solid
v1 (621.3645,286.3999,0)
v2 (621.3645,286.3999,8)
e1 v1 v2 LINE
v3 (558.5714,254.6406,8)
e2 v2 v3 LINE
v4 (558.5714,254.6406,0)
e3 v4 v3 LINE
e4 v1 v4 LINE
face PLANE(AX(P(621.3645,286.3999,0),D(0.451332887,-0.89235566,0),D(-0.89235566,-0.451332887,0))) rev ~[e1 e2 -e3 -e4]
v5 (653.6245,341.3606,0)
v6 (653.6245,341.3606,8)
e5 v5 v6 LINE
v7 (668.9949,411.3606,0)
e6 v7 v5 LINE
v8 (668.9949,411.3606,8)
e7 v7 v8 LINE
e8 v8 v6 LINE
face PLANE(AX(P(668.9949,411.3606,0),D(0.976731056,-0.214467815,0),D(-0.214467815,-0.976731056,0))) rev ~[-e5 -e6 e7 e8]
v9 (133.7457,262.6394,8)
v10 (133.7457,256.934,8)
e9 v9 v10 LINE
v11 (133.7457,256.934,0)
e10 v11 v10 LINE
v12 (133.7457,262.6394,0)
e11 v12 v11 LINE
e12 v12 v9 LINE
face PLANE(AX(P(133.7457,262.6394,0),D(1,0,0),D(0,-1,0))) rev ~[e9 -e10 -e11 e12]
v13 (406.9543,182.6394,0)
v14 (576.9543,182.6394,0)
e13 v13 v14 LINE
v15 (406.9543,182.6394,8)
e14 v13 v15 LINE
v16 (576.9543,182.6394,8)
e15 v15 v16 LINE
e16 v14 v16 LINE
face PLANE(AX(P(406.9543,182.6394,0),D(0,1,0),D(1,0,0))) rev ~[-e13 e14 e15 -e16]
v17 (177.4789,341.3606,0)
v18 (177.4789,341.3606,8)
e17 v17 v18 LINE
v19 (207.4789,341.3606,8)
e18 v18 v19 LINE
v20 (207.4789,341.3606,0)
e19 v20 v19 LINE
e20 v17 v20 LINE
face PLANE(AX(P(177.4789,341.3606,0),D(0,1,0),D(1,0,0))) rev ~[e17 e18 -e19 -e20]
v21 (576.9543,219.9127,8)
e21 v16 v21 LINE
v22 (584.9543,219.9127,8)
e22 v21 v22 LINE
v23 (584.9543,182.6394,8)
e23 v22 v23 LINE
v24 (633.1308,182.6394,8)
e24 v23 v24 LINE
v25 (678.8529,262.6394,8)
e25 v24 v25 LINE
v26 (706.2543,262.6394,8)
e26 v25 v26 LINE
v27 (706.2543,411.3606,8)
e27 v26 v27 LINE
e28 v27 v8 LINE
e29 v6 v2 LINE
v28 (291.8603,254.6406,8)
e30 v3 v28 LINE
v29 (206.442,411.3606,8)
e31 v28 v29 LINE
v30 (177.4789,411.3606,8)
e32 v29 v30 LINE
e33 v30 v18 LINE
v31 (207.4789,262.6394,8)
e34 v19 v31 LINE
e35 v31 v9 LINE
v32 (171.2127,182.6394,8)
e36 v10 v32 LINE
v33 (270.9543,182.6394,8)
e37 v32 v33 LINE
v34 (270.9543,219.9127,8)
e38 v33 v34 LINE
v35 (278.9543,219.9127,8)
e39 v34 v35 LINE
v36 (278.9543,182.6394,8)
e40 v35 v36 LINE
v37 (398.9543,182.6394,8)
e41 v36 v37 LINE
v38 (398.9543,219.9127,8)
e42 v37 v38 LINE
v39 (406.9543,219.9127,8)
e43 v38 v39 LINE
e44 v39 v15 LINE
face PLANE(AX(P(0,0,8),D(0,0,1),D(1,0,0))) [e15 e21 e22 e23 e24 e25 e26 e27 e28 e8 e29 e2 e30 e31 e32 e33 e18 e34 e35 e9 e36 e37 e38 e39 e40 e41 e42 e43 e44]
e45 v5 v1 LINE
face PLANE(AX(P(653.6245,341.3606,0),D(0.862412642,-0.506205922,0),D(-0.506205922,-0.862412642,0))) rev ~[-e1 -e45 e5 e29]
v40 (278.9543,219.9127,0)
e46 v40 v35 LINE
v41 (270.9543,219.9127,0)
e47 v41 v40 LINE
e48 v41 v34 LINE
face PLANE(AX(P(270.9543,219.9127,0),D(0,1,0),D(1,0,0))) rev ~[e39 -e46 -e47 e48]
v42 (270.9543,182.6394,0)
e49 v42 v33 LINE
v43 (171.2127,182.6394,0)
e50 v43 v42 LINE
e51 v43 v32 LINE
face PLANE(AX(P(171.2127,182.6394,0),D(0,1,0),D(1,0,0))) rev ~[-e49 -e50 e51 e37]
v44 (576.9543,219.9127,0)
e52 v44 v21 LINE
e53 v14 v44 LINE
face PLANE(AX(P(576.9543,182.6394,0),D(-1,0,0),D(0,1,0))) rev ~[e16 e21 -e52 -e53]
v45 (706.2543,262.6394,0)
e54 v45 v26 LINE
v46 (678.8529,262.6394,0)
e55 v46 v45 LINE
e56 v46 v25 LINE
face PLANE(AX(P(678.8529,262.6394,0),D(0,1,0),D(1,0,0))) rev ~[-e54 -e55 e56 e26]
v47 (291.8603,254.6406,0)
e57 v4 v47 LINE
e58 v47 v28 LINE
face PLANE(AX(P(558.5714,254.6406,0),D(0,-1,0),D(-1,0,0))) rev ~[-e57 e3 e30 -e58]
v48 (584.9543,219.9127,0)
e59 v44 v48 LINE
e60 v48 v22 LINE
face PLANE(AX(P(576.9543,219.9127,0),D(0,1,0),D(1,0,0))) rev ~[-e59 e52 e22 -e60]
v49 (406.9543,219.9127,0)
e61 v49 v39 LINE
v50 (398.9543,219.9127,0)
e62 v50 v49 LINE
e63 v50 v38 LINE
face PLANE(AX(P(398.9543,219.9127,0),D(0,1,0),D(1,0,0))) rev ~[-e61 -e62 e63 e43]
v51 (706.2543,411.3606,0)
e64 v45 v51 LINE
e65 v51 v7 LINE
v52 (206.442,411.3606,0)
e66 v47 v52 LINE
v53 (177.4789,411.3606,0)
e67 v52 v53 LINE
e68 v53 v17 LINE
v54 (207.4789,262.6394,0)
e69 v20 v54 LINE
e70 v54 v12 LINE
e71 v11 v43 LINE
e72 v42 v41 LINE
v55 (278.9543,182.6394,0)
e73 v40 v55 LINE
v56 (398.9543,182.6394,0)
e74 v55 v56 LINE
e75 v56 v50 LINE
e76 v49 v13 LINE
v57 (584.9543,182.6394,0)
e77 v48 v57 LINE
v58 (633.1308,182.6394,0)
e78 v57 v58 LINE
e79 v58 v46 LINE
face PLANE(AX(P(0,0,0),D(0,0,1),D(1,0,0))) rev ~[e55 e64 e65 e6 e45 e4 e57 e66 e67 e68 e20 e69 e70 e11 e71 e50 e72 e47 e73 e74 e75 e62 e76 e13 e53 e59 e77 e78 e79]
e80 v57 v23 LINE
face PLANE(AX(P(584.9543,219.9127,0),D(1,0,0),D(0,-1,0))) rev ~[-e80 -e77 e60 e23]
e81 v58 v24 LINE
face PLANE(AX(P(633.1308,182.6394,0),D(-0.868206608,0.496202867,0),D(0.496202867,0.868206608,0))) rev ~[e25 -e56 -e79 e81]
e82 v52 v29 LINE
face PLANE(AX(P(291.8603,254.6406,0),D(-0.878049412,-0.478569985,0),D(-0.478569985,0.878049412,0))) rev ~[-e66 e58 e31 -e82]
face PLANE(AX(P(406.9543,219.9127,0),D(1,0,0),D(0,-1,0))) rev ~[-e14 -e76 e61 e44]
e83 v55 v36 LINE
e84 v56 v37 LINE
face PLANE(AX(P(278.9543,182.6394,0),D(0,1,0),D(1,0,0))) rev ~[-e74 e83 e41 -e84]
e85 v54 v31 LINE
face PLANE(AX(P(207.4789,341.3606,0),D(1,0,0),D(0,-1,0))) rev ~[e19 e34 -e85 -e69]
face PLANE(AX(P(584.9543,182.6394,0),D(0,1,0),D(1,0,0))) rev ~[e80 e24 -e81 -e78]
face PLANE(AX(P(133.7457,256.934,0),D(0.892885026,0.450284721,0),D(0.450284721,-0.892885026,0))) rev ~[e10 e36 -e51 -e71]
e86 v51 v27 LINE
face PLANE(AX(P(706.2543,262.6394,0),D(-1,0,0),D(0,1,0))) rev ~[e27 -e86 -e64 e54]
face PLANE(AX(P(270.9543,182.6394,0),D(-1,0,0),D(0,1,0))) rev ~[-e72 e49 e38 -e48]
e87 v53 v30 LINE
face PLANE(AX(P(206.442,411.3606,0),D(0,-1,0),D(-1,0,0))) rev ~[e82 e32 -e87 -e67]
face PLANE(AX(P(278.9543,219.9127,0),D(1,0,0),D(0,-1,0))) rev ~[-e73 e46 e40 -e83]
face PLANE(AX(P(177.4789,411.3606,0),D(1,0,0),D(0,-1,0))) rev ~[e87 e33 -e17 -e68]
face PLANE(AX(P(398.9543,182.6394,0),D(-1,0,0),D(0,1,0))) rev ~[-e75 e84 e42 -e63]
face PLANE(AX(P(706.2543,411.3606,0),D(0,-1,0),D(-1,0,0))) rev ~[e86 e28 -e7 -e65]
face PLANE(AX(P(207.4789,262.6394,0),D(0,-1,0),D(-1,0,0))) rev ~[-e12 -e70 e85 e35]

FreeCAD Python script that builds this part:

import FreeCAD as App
import Part
import Sketcher
Q = App.Units.Quantity


def add_polygon(sketch, points):
    """Adds a closed chain of lines whose ends are joined by coincident constraints."""
    first, n = sketch.GeometryCount, len(points)
    for a, b in zip(points, points[1:] + points[:1]):
        sketch.addGeometry(Part.LineSegment(App.Vector(*a, 0), App.Vector(*b, 0)), False)
    for i in range(n):
        sketch.addConstraint(Sketcher.Constraint("Coincident", first + i, 2, first + (i + 1) % n, 1))

doc = App.newDocument("Part")
body = doc.addObject("PartDesign::Body", "Body")

# Sketch on XY plane
sketch1 = body.newObject("Sketcher::SketchObject", "Sketch")
sketch1.AttachmentSupport = (doc.getObject("XY_Plane"), [""])
sketch1.MapMode = "FlatFace"
add_polygon(sketch1, [(177.4789, 411.3606), (177.4789, 341.3606), (207.4789, 341.3606), (207.4789, 262.6394), (133.7457, 262.6394), (133.7457, 256.934), (171.2127, 182.6394), (270.9543, 182.6394), (270.9543, 219.9127), (278.9543, 219.9127), (278.9543, 182.6394), (398.9543, 182.6394), (398.9543, 219.9127), (406.9543, 219.9127), (406.9543, 182.6394), (576.9543, 182.6394), (576.9543, 219.9127), (584.9543, 219.9127), (584.9543, 182.6394), (633.1308, 182.6394), (678.8529, 262.6394), (706.2543, 262.6394), (706.2543, 411.3606), (668.9949, 411.3606), (653.6245, 341.3606), (621.3645, 286.3999), (558.5714, 254.6406), (291.8603, 254.6406), (206.442, 411.3606)])  # lines 0-28
sketch1.addConstraint([
    Sketcher.Constraint("Vertical", 0),
    Sketcher.Constraint("Horizontal", 1),
    Sketcher.Constraint("Vertical", 2),
    Sketcher.Constraint("Horizontal", 3),
    Sketcher.Constraint("Vertical", 4),
    Sketcher.Constraint("Horizontal", 6),
    Sketcher.Constraint("Vertical", 7),
    Sketcher.Constraint("Horizontal", 8),
    Sketcher.Constraint("Vertical", 9),
    Sketcher.Constraint("Horizontal", 10),
    Sketcher.Constraint("Vertical", 11),
    Sketcher.Constraint("Horizontal", 12),
    Sketcher.Constraint("Vertical", 13),
    Sketcher.Constraint("Horizontal", 14),
    Sketcher.Constraint("Vertical", 15),
    Sketcher.Constraint("Horizontal", 16),
    Sketcher.Constraint("Vertical", 17),
    Sketcher.Constraint("Horizontal", 18),
    Sketcher.Constraint("Horizontal", 20),
    Sketcher.Constraint("Vertical", 21),
    Sketcher.Constraint("Horizontal", 22),
    Sketcher.Constraint("Horizontal", 26),
    Sketcher.Constraint("Horizontal", 28),
    Sketcher.Constraint("Horizontal", 6, 2, 9, 2),
    Sketcher.Constraint("Horizontal", 8, 2, 11, 2),
    Sketcher.Constraint("Horizontal", 10, 2, 13, 2),
    Sketcher.Constraint("Horizontal", 12, 2, 15, 2),
    Sketcher.Constraint("Horizontal", 14, 2, 17, 2),
    Sketcher.Constraint("Horizontal", 3, 2, 19, 2),
    Sketcher.Constraint("Horizontal", 1, 2, 23, 2),
    Sketcher.Constraint("Horizontal", 22, 2, 27, 2),
    Sketcher.Constraint("Equal", 8, 12),
    Sketcher.Constraint("Equal", 12, 16),
    Sketcher.Constraint("DistanceX", 1, 1, 1, 2, 30.0),
    Sketcher.Constraint("DistanceX", 8, 1, 8, 2, 8.0),
    Sketcher.Constraint("DistanceX", 10, 1, 10, 2, 120.0),
    Sketcher.Constraint("DistanceX", 14, 1, 14, 2, 170.0),
    Sketcher.Constraint("DistanceY", 0, 2, 0, 1, 70.0),
    Sketcher.Constraint("DistanceY", 5, 2, 2, 2, 80.0),
    Sketcher.Constraint("DistanceY", -1, 1, 24, 2, 286.4),
    Sketcher.Constraint("Angle", 19, Q("60.251 deg")),
    Sketcher.Constraint("Angle", 25, Q("-153.1708 deg")),
    Sketcher.Constraint("DistanceX", 16, 2, 20, 2, 121.3),
    Sketcher.Constraint("DistanceX", 26, 2, 26, 1, 266.711),
    Sketcher.Constraint("DistanceX", 28, 2, 28, 1, 28.963),
    Sketcher.Constraint("DistanceX", 24, 2, 23, 2, 32.26),
    Sketcher.Constraint("Distance", 24, 63.729),
    Sketcher.Constraint("DistanceX", 3, 2, 3, 1, 73.7332),
    Sketcher.Constraint("DistanceX", 6, 1, 6, 2, 99.7416),
    Sketcher.Constraint("DistanceX", 18, 1, 18, 2, 48.1765),
    Sketcher.Constraint("DistanceX", 22, 2, 22, 1, 37.2594),
    Sketcher.Constraint("DistanceY", 2, 2, 2, 1, 78.7212),
    Sketcher.Constraint("DistanceY", 4, 2, 4, 1, 5.7054),
    Sketcher.Constraint("DistanceY", 7, 1, 7, 2, 37.2733),
    Sketcher.Constraint("DistanceX", -1, 1, 0, 2, 177.479),
    Sketcher.Constraint("DistanceX", -1, 1, 19, 2, 678.853),
    Sketcher.Constraint("DistanceX", 25, 2, 15, 2, 18.383),
    Sketcher.Constraint("DistanceY", 15, 2, 25, 2, 34.728),
])
pad1 = body.newObject("PartDesign::Pad", "Pad")
pad1.Profile = sketch1
pad1.Length = 8

doc.recompute()
